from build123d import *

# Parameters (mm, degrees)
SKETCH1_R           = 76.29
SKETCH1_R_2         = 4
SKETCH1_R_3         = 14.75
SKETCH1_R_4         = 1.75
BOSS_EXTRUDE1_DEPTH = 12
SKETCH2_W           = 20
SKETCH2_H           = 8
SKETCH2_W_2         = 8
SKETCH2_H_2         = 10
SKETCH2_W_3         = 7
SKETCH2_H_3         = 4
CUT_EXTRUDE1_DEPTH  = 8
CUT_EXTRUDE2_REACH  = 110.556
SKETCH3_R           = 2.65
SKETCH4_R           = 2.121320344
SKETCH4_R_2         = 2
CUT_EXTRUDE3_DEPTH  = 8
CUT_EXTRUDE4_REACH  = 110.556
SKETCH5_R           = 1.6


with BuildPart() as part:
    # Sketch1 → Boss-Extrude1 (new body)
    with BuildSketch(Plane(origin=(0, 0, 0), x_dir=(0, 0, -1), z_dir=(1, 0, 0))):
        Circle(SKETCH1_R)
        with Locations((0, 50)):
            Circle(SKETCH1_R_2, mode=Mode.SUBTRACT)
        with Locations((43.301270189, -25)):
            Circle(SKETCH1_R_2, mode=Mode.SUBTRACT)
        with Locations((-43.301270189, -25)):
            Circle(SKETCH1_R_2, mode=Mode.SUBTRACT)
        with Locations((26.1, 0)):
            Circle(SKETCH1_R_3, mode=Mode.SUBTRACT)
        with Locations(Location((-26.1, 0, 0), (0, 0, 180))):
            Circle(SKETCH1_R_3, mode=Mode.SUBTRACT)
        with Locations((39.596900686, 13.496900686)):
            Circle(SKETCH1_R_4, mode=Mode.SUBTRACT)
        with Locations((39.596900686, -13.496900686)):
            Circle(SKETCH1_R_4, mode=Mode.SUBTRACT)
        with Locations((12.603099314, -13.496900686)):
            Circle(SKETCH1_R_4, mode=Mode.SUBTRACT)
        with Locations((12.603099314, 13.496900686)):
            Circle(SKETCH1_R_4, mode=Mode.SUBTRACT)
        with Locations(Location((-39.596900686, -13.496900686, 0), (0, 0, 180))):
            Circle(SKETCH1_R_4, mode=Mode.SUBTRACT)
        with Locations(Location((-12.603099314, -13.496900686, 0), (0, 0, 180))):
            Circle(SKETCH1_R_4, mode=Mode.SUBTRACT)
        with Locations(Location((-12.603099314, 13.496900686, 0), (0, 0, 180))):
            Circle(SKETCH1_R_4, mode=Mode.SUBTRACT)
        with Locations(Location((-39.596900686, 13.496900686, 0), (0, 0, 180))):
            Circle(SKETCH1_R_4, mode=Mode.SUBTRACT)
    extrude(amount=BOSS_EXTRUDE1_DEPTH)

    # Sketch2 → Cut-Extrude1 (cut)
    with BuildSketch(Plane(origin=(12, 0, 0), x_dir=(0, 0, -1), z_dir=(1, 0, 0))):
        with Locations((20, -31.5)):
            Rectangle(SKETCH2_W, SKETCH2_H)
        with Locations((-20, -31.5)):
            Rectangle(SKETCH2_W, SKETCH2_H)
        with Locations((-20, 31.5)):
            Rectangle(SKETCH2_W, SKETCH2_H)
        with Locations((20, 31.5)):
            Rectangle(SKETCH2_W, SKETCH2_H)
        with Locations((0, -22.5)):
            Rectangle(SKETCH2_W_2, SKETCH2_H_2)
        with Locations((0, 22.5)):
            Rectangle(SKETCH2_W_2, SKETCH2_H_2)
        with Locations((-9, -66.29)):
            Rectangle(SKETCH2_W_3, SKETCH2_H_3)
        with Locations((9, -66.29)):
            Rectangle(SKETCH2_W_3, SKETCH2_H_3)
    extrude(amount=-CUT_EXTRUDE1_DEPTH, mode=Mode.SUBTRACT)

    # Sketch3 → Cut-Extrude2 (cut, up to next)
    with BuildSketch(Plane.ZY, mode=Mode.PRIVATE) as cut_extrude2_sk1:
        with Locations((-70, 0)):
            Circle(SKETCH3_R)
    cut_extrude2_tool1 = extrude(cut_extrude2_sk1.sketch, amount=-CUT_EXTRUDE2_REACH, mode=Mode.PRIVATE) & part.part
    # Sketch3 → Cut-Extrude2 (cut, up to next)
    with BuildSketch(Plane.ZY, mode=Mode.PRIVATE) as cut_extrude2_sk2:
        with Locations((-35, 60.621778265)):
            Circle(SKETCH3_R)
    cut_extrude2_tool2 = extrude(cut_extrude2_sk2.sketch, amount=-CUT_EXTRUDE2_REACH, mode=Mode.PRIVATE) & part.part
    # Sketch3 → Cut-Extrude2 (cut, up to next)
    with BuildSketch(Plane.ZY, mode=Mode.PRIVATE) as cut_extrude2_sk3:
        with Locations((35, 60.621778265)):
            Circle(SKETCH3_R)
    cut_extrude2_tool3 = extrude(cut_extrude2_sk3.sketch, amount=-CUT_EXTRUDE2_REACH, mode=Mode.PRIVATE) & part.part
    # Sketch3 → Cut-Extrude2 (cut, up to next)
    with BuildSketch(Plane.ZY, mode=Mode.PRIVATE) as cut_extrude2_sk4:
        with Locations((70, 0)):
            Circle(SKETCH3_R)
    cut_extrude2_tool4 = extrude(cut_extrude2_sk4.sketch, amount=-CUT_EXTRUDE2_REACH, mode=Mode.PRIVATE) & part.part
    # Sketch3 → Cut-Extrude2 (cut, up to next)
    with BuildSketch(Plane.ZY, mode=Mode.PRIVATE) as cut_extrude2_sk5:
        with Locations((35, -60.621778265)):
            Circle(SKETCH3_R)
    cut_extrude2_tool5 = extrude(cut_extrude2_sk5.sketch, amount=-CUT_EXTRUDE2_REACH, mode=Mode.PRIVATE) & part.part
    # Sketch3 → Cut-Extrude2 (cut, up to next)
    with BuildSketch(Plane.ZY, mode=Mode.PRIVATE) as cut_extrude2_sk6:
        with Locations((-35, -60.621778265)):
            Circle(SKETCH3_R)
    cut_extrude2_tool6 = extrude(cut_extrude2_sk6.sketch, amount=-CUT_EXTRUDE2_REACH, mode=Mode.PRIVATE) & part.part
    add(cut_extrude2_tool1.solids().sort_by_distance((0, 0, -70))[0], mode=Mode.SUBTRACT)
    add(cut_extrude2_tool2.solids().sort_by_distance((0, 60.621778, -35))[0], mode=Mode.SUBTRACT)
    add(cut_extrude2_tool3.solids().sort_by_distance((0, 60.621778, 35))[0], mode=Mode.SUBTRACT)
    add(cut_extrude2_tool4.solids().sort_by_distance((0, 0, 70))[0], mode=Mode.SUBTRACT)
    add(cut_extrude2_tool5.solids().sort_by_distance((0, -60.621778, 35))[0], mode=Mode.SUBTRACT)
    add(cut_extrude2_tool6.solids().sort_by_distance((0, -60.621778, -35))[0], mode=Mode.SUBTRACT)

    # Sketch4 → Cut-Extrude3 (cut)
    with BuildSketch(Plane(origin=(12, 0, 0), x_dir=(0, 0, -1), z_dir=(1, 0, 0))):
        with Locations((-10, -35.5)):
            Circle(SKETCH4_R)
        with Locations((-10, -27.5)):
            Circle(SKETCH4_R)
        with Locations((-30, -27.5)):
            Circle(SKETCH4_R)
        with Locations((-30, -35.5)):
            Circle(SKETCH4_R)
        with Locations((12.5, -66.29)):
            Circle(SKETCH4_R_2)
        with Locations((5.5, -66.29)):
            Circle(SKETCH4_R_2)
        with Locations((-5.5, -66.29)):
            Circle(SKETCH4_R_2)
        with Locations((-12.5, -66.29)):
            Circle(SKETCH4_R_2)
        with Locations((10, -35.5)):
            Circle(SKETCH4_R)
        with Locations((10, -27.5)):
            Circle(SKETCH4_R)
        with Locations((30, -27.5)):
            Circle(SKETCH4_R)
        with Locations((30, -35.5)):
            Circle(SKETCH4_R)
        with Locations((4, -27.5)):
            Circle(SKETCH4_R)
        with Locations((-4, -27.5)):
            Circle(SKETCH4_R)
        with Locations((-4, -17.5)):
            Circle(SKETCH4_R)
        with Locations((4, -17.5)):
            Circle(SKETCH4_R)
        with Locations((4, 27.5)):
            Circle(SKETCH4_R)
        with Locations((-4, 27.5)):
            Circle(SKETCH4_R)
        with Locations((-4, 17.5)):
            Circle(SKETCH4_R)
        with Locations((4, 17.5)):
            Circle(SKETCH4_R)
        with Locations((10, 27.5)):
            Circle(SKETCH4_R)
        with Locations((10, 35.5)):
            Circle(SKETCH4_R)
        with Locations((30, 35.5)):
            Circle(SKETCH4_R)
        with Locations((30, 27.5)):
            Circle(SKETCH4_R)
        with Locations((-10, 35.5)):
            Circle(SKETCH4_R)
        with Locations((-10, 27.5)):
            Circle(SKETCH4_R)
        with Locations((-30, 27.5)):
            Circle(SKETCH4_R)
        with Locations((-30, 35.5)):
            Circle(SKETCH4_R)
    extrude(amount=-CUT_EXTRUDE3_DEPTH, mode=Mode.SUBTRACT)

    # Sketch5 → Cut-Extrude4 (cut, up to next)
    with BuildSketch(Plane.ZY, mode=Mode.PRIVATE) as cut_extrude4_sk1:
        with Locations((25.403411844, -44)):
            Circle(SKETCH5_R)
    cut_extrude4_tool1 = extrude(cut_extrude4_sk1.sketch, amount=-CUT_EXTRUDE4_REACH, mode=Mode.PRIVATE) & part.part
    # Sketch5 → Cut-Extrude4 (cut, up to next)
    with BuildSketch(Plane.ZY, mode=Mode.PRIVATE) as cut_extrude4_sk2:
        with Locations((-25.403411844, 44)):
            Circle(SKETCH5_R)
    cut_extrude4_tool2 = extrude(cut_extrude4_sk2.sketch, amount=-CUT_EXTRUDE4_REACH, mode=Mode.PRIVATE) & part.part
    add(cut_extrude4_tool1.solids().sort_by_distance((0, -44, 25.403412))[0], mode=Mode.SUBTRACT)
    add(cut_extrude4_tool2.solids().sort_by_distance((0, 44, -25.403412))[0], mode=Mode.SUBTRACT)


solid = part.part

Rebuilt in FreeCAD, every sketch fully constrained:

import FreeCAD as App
import Part
import Sketcher

V = App.Vector

doc = App.newDocument("Part")
body = doc.addObject("PartDesign::Body", "Body")

sketch1 = body.newObject("Sketcher::SketchObject", "Sketch")
sketch1.AttachmentSupport = (doc.getObject("YZ_Plane"), [""])
sketch1.MapMode = "FlatFace"
sketch1.addGeometry([
    Part.Circle(V(0, 0, 0), V(0, 0, 1), 76.3),
    Part.Circle(V(-25, 43.3, 0), V(0, 0, 1), 4),
    Part.Circle(V(-13.5, 39.6, 0), V(0, 0, 1), 1.8),
    Part.Circle(V(-13.5, 12.6, 0), V(0, 0, 1), 1.8),
    Part.Circle(V(0, 26.1, 0), V(0, 0, 1), 14.8),
    Part.Circle(V(-13.5, -12.6, 0), V(0, 0, 1), 1.8),
    Part.Circle(V(-25, -43.3, 0), V(0, 0, 1), 4),
    Part.Circle(V(-13.5, -39.6, 0), V(0, 0, 1), 1.8),
    Part.Circle(V(0, -26.1, 0), V(0, 0, 1), 14.8),
    Part.Circle(V(13.5, 39.6, 0), V(0, 0, 1), 1.8),
    Part.Circle(V(13.5, 12.6, 0), V(0, 0, 1), 1.8),
    Part.Circle(V(13.5, -12.6, 0), V(0, 0, 1), 1.8),
    Part.Circle(V(13.5, -39.6, 0), V(0, 0, 1), 1.8),
    Part.Circle(V(50, 0, 0), V(0, 0, 1), 4),
], False)
sketch1.addConstraint([
    Sketcher.Constraint("Coincident", 0, 3, -1, 1),
    Sketcher.Constraint("Equal", 2, 3),
    Sketcher.Constraint("Equal", 3, 5),
    Sketcher.Constraint("Equal", 1, 6),
    Sketcher.Constraint("Equal", 5, 7),
    Sketcher.Constraint("Equal", 4, 8),
    Sketcher.Constraint("Equal", 7, 9),
    Sketcher.Constraint("Equal", 9, 10),
    Sketcher.Constraint("Equal", 10, 11),
    Sketcher.Constraint("Equal", 11, 12),
    Sketcher.Constraint("Equal", 6, 13),
    Sketcher.Constraint("Symmetric", 4, 3, 8, 3, -1, 1),
    Sketcher.Constraint("Symmetric", 7, 3, 9, 3, -1, 1),
    Sketcher.Constraint("Symmetric", 5, 3, 10, 3, -1, 1),
    Sketcher.Constraint("Symmetric", 3, 3, 11, 3, -1, 1),
    Sketcher.Constraint("Symmetric", 2, 3, 12, 3, -1, 1),
    Sketcher.Constraint("Symmetric", 2, 3, 9, 3, -2),
    Sketcher.Constraint("Symmetric", 3, 3, 10, 3, -2),
    Sketcher.Constraint("Symmetric", 1, 3, 6, 3, -1),
    Sketcher.Constraint("PointOnObject", 4, 3, -2),
    Sketcher.Constraint("PointOnObject", 13, 3, -1),
    Sketcher.Constraint("Vertical", 2, 3, 3, 3),
    Sketcher.Constraint("Diameter", 1, 8.0),
    Sketcher.Constraint("Diameter", 2, 3.5),
    Sketcher.Constraint("Diameter", 4, 29.5),
    Sketcher.Constraint("Diameter", 0, 152.58),
    Sketcher.Constraint("DistanceX", 1, 3, -1, 1, 25.0),
    Sketcher.Constraint("DistanceX", -1, 1, 13, 3, 50.0),
    Sketcher.Constraint("DistanceY", -1, 1, 4, 3, 26.1),
    Sketcher.Constraint("DistanceY", 5, 3, 2, 3, 52.2),
    Sketcher.Constraint("DistanceX", 2, 3, -1, 1, 13.496901),
    Sketcher.Constraint("DistanceY", -1, 1, 2, 3, 39.596901),
    Sketcher.Constraint("DistanceY", -1, 1, 1, 3, 43.30127),
])
pad1 = body.newObject("PartDesign::Pad", "Pad")
pad1.Profile = sketch1
pad1.Length = 12

sketch2 = body.newObject("Sketcher::SketchObject", "Sketch001")
sketch2.AttachmentSupport = (doc.getObject("YZ_Plane"), [""])
sketch2.MapMode = "FlatFace"
sketch2.AttachmentOffset = App.Placement(V(0, 0, 12), App.Rotation())
sketch2.addGeometry([
    Part.LineSegment(V(-27.5, -10, 0), V(-35.5, -10, 0)),
    Part.LineSegment(V(-35.5, -10, 0), V(-35.5, -30, 0)),
    Part.LineSegment(V(-35.5, -30, 0), V(-27.5, -30, 0)),
    Part.LineSegment(V(-27.5, -30, 0), V(-27.5, -10, 0)),
    Part.LineSegment(V(-27.5, 30, 0), V(-35.5, 30, 0)),
    Part.LineSegment(V(-35.5, 30, 0), V(-35.5, 10, 0)),
    Part.LineSegment(V(-35.5, 10, 0), V(-27.5, 10, 0)),
    Part.LineSegment(V(-27.5, 10, 0), V(-27.5, 30, 0)),
    Part.LineSegment(V(35.5, 30, 0), V(27.5, 30, 0)),
    Part.LineSegment(V(27.5, 30, 0), V(27.5, 10, 0)),
    Part.LineSegment(V(27.5, 10, 0), V(35.5, 10, 0)),
    Part.LineSegment(V(35.5, 10, 0), V(35.5, 30, 0)),
    Part.LineSegment(V(35.5, -10, 0), V(27.5, -10, 0)),
    Part.LineSegment(V(27.5, -10, 0), V(27.5, -30, 0)),
    Part.LineSegment(V(27.5, -30, 0), V(35.5, -30, 0)),
    Part.LineSegment(V(35.5, -30, 0), V(35.5, -10, 0)),
    Part.LineSegment(V(-17.5, 4, 0), V(-27.5, 4, 0)),
    Part.LineSegment(V(-27.5, 4, 0), V(-27.5, -4, 0)),
    Part.LineSegment(V(-27.5, -4, 0), V(-17.5, -4, 0)),
    Part.LineSegment(V(-17.5, -4, 0), V(-17.5, 4, 0)),
    Part.LineSegment(V(27.5, 4, 0), V(17.5, 4, 0)),
    Part.LineSegment(V(17.5, 4, 0), V(17.5, -4, 0)),
    Part.LineSegment(V(17.5, -4, 0), V(27.5, -4, 0)),
    Part.LineSegment(V(27.5, -4, 0), V(27.5, 4, 0)),
    Part.LineSegment(V(-64.3, 12.5, 0), V(-68.3, 12.5, 0)),
    Part.LineSegment(V(-68.3, 12.5, 0), V(-68.3, 5.5, 0)),
    Part.LineSegment(V(-68.3, 5.5, 0), V(-64.3, 5.5, 0)),
    Part.LineSegment(V(-64.3, 5.5, 0), V(-64.3, 12.5, 0)),
    Part.LineSegment(V(-64.3, -5.5, 0), V(-68.3, -5.5, 0)),
    Part.LineSegment(V(-68.3, -5.5, 0), V(-68.3, -12.5, 0)),
    Part.LineSegment(V(-68.3, -12.5, 0), V(-64.3, -12.5, 0)),
    Part.LineSegment(V(-64.3, -12.5, 0), V(-64.3, -5.5, 0)),
], False)
sketch2.addConstraint([
    Sketcher.Constraint("Coincident", 0, 2, 1, 1),
    Sketcher.Constraint("Coincident", 1, 2, 2, 1),
    Sketcher.Constraint("Coincident", 2, 2, 3, 1),
    Sketcher.Constraint("Coincident", 3, 2, 0, 1),
    Sketcher.Constraint("Coincident", 4, 2, 5, 1),
    Sketcher.Constraint("Coincident", 5, 2, 6, 1),
    Sketcher.Constraint("Coincident", 6, 2, 7, 1),
    Sketcher.Constraint("Coincident", 7, 2, 4, 1),
    Sketcher.Constraint("Coincident", 8, 2, 9, 1),
    Sketcher.Constraint("Coincident", 9, 2, 10, 1),
    Sketcher.Constraint("Coincident", 10, 2, 11, 1),
    Sketcher.Constraint("Coincident", 11, 2, 8, 1),
    Sketcher.Constraint("Coincident", 12, 2, 13, 1),
    Sketcher.Constraint("Coincident", 13, 2, 14, 1),
    Sketcher.Constraint("Coincident", 14, 2, 15, 1),
    Sketcher.Constraint("Coincident", 15, 2, 12, 1),
    Sketcher.Constraint("Coincident", 16, 2, 17, 1),
    Sketcher.Constraint("Coincident", 17, 2, 18, 1),
    Sketcher.Constraint("Coincident", 18, 2, 19, 1),
    Sketcher.Constraint("Coincident", 19, 2, 16, 1),
    Sketcher.Constraint("Coincident", 20, 2, 21, 1),
    Sketcher.Constraint("Coincident", 21, 2, 22, 1),
    Sketcher.Constraint("Coincident", 22, 2, 23, 1),
    Sketcher.Constraint("Coincident", 23, 2, 20, 1),
    Sketcher.Constraint("Coincident", 24, 2, 25, 1),
    Sketcher.Constraint("Coincident", 25, 2, 26, 1),
    Sketcher.Constraint("Coincident", 26, 2, 27, 1),
    Sketcher.Constraint("Coincident", 27, 2, 24, 1),
    Sketcher.Constraint("Coincident", 28, 2, 29, 1),
    Sketcher.Constraint("Coincident", 29, 2, 30, 1),
    Sketcher.Constraint("Coincident", 30, 2, 31, 1),
    Sketcher.Constraint("Coincident", 31, 2, 28, 1),
    Sketcher.Constraint("Horizontal", 0),
    Sketcher.Constraint("Vertical", 1),
    Sketcher.Constraint("Horizontal", 2),
    Sketcher.Constraint("Vertical", 3),
    Sketcher.Constraint("Horizontal", 4),
    Sketcher.Constraint("Vertical", 5),
    Sketcher.Constraint("Horizontal", 6),
    Sketcher.Constraint("Vertical", 7),
    Sketcher.Constraint("Horizontal", 8),
    Sketcher.Constraint("Vertical", 9),
    Sketcher.Constraint("Horizontal", 10),
    Sketcher.Constraint("Vertical", 11),
    Sketcher.Constraint("Horizontal", 12),
    Sketcher.Constraint("Vertical", 13),
    Sketcher.Constraint("Horizontal", 14),
    Sketcher.Constraint("Vertical", 15),
    Sketcher.Constraint("Horizontal", 16),
    Sketcher.Constraint("Vertical", 17),
    Sketcher.Constraint("Horizontal", 18),
    Sketcher.Constraint("Vertical", 19),
    Sketcher.Constraint("Horizontal", 20),
    Sketcher.Constraint("Vertical", 21),
    Sketcher.Constraint("Horizontal", 22),
    Sketcher.Constraint("Vertical", 23),
    Sketcher.Constraint("Horizontal", 24),
    Sketcher.Constraint("Vertical", 25),
    Sketcher.Constraint("Horizontal", 26),
    Sketcher.Constraint("Vertical", 27),
    Sketcher.Constraint("Horizontal", 28),
    Sketcher.Constraint("Vertical", 29),
    Sketcher.Constraint("Horizontal", 30),
    Sketcher.Constraint("Vertical", 31),
    Sketcher.Constraint("Symmetric", 2, 2, 8, 2, -1, 1),
    Sketcher.Constraint("Symmetric", 0, 2, 10, 2, -1, 1),
    Sketcher.Constraint("Symmetric", 6, 2, 12, 2, -1, 1),
    Sketcher.Constraint("Symmetric", 4, 2, 14, 2, -1, 1),
    Sketcher.Constraint("Symmetric", 18, 2, 20, 2, -1, 1),
    Sketcher.Constraint("Symmetric", 16, 2, 22, 2, -1, 1),
    Sketcher.Constraint("Symmetric", 7, 2, 8, 2, -2),
    Sketcher.Constraint("Symmetric", 5, 2, 10, 2, -2),
    Sketcher.Constraint("Symmetric", 25, 2, 28, 2, -1),
    Sketcher.Constraint("Symmetric", 27, 2, 30, 2, -1),
    Sketcher.Constraint("Horizontal", 19, 2, 20, 2),
    Sketcher.Constraint("Vertical", 7, 2, 16, 2),
    Sketcher.Constraint("Equal", 14, 17),
    Sketcher.Constraint("DistanceX", 0, 2, 0, 1, 8.0),
    Sketcher.Constraint("DistanceX", 16, 2, 16, 1, 10.0),
    Sketcher.Constraint("DistanceX", 24, 2, 24, 1, 4.0),
    Sketcher.Constraint("DistanceY", 1, 2, 1, 1, 20.0),
    Sketcher.Constraint("DistanceY", 25, 2, 25, 1, 7.0),
    Sketcher.Constraint("DistanceY", 0, 2, -1, 1, 10.0),
    Sketcher.Constraint("DistanceX", 7, 2, 8, 2, 55.0),
    Sketcher.Constraint("DistanceY", 28, 2, 25, 2, 11.0),
    Sketcher.Constraint("DistanceX", 24, 2, -1, 1, 68.29),
])
pocket1 = body.newObject("PartDesign::Pocket", "Pocket")
pocket1.Profile = sketch2
pocket1.Length = 8

sketch3 = body.newObject("Sketcher::SketchObject", "Sketch002")
sketch3.AttachmentSupport = (doc.getObject("YZ_Plane"), [""])
sketch3.MapMode = "FlatFace"
sketch3.addGeometry(Part.Circle(V(0, -70, 0), V(0, 0, 1), 2.6), False)
sketch3.addConstraint([
    Sketcher.Constraint("PointOnObject", 0, 3, -2),
    Sketcher.Constraint("Diameter", 0, 5.3),
    Sketcher.Constraint("DistanceY", 0, 3, -1, 1, 70.0),
])
pocket2 = body.newObject("PartDesign::Pocket", "Pocket001")
pocket2.Profile = sketch3
pocket2.Type = "UpToFirst"
pocket2.Reversed = True

sketch4 = body.newObject("Sketcher::SketchObject", "Sketch003")
sketch4.AttachmentSupport = (doc.getObject("YZ_Plane"), [""])
sketch4.MapMode = "FlatFace"
sketch4.addGeometry(Part.Circle(V(60.6, -35, 0), V(0, 0, 1), 2.6), False)
sketch4.addConstraint([
    Sketcher.Constraint("Diameter", 0, 5.3),
    Sketcher.Constraint("DistanceY", 0, 3, -1, 1, 35.0),
    Sketcher.Constraint("DistanceX", -1, 1, 0, 3, 60.621778),
])
pocket3 = body.newObject("PartDesign::Pocket", "Pocket002")
pocket3.Profile = sketch4
pocket3.Type = "UpToFirst"
pocket3.Reversed = True

sketch5 = body.newObject("Sketcher::SketchObject", "Sketch004")
sketch5.AttachmentSupport = (doc.getObject("YZ_Plane"), [""])
sketch5.MapMode = "FlatFace"
sketch5.addGeometry(Part.Circle(V(60.6, 35, 0), V(0, 0, 1), 2.6), False)
sketch5.addConstraint([
    Sketcher.Constraint("Diameter", 0, 5.3),
    Sketcher.Constraint("DistanceY", -1, 1, 0, 3, 35.0),
    Sketcher.Constraint("DistanceX", -1, 1, 0, 3, 60.621778),
])
pocket4 = body.newObject("PartDesign::Pocket", "Pocket003")
pocket4.Profile = sketch5
pocket4.Type = "UpToFirst"
pocket4.Reversed = True

sketch6 = body.newObject("Sketcher::SketchObject", "Sketch005")
sketch6.AttachmentSupport = (doc.getObject("YZ_Plane"), [""])
sketch6.MapMode = "FlatFace"
sketch6.addGeometry(Part.Circle(V(0, 70, 0), V(0, 0, 1), 2.6), False)
sketch6.addConstraint([
    Sketcher.Constraint("PointOnObject", 0, 3, -2),
    Sketcher.Constraint("Diameter", 0, 5.3),
    Sketcher.Constraint("DistanceY", -1, 1, 0, 3, 70.0),
])
pocket5 = body.newObject("PartDesign::Pocket", "Pocket004")
pocket5.Profile = sketch6
pocket5.Type = "UpToFirst"
pocket5.Reversed = True

sketch7 = body.newObject("Sketcher::SketchObject", "Sketch006")
sketch7.AttachmentSupport = (doc.getObject("YZ_Plane"), [""])
sketch7.MapMode = "FlatFace"
sketch7.addGeometry(Part.Circle(V(-60.6, 35, 0), V(0, 0, 1), 2.6), False)
sketch7.addConstraint([
    Sketcher.Constraint("Diameter", 0, 5.3),
    Sketcher.Constraint("DistanceY", -1, 1, 0, 3, 35.0),
    Sketcher.Constraint("DistanceX", 0, 3, -1, 1, 60.621778),
])
pocket6 = body.newObject("PartDesign::Pocket", "Pocket005")
pocket6.Profile = sketch7
pocket6.Type = "UpToFirst"
pocket6.Reversed = True

sketch8 = body.newObject("Sketcher::SketchObject", "Sketch007")
sketch8.AttachmentSupport = (doc.getObject("YZ_Plane"), [""])
sketch8.MapMode = "FlatFace"
sketch8.addGeometry(Part.Circle(V(-60.6, -35, 0), V(0, 0, 1), 2.6), False)
sketch8.addConstraint([
    Sketcher.Constraint("Diameter", 0, 5.3),
    Sketcher.Constraint("DistanceY", 0, 3, -1, 1, 35.0),
    Sketcher.Constraint("DistanceX", 0, 3, -1, 1, 60.621778),
])
pocket7 = body.newObject("PartDesign::Pocket", "Pocket006")
pocket7.Profile = sketch8
pocket7.Type = "UpToFirst"
pocket7.Reversed = True

sketch9 = body.newObject("Sketcher::SketchObject", "Sketch008")
sketch9.AttachmentSupport = (doc.getObject("YZ_Plane"), [""])
sketch9.MapMode = "FlatFace"
sketch9.AttachmentOffset = App.Placement(V(0, 0, 12), App.Rotation())
sketch9.addGeometry([
    Part.Circle(V(-35.5, 10, 0), V(0, 0, 1), 2.1),
    Part.Circle(V(-27.5, 10, 0), V(0, 0, 1), 2.1),
    Part.Circle(V(-27.5, 30, 0), V(0, 0, 1), 2.1),
    Part.Circle(V(-35.5, 30, 0), V(0, 0, 1), 2.1),
    Part.Circle(V(-66.3, -12.5, 0), V(0, 0, 1), 2),
    Part.Circle(V(-66.3, -5.5, 0), V(0, 0, 1), 2),
    Part.Circle(V(-66.3, 5.5, 0), V(0, 0, 1), 2),
    Part.Circle(V(-66.3, 12.5, 0), V(0, 0, 1), 2),
    Part.Circle(V(-35.5, -10, 0), V(0, 0, 1), 2.1),
    Part.Circle(V(-27.5, -10, 0), V(0, 0, 1), 2.1),
    Part.Circle(V(-27.5, -30, 0), V(0, 0, 1), 2.1),
    Part.Circle(V(-35.5, -30, 0), V(0, 0, 1), 2.1),
    Part.Circle(V(-27.5, -4, 0), V(0, 0, 1), 2.1),
    Part.Circle(V(-27.5, 4, 0), V(0, 0, 1), 2.1),
    Part.Circle(V(-17.5, 4, 0), V(0, 0, 1), 2.1),
    Part.Circle(V(-17.5, -4, 0), V(0, 0, 1), 2.1),
    Part.Circle(V(27.5, -4, 0), V(0, 0, 1), 2.1),
    Part.Circle(V(27.5, 4, 0), V(0, 0, 1), 2.1),
    Part.Circle(V(17.5, 4, 0), V(0, 0, 1), 2.1),
    Part.Circle(V(17.5, -4, 0), V(0, 0, 1), 2.1),
    Part.Circle(V(27.5, -10, 0), V(0, 0, 1), 2.1),
    Part.Circle(V(35.5, -10, 0), V(0, 0, 1), 2.1),
    Part.Circle(V(35.5, -30, 0), V(0, 0, 1), 2.1),
    Part.Circle(V(27.5, -30, 0), V(0, 0, 1), 2.1),
    Part.Circle(V(35.5, 10, 0), V(0, 0, 1), 2.1),
    Part.Circle(V(27.5, 10, 0), V(0, 0, 1), 2.1),
    Part.Circle(V(27.5, 30, 0), V(0, 0, 1), 2.1),
    Part.Circle(V(35.5, 30, 0), V(0, 0, 1), 2.1),
], False)
sketch9.addConstraint([
    Sketcher.Constraint("Equal", 0, 1),
    Sketcher.Constraint("Equal", 1, 2),
    Sketcher.Constraint("Equal", 2, 3),
    Sketcher.Constraint("Equal", 4, 5),
    Sketcher.Constraint("Equal", 5, 6),
    Sketcher.Constraint("Equal", 6, 7),
    Sketcher.Constraint("Equal", 3, 8),
    Sketcher.Constraint("Equal", 8, 9),
    Sketcher.Constraint("Equal", 9, 10),
    Sketcher.Constraint("Equal", 10, 11),
    Sketcher.Constraint("Equal", 11, 12),
    Sketcher.Constraint("Equal", 12, 13),
    Sketcher.Constraint("Equal", 13, 14),
    Sketcher.Constraint("Equal", 14, 15),
    Sketcher.Constraint("Equal", 15, 16),
    Sketcher.Constraint("Equal", 16, 17),
    Sketcher.Constraint("Equal", 17, 18),
    Sketcher.Constraint("Equal", 18, 19),
    Sketcher.Constraint("Equal", 19, 20),
    Sketcher.Constraint("Equal", 20, 21),
    Sketcher.Constraint("Equal", 21, 22),
    Sketcher.Constraint("Equal", 22, 23),
    Sketcher.Constraint("Equal", 23, 24),
    Sketcher.Constraint("Equal", 24, 25),
    Sketcher.Constraint("Equal", 25, 26),
    Sketcher.Constraint("Equal", 26, 27),
    Sketcher.Constraint("Symmetric", 13, 3, 16, 3, -1, 1),
    Sketcher.Constraint("Symmetric", 12, 3, 17, 3, -1, 1),
    Sketcher.Constraint("Symmetric", 15, 3, 18, 3, -1, 1),
    Sketcher.Constraint("Symmetric", 14, 3, 19, 3, -1, 1),
    Sketcher.Constraint("Symmetric", 1, 3, 20, 3, -1, 1),
    Sketcher.Constraint("Symmetric", 0, 3, 21, 3, -1, 1),
    Sketcher.Constraint("Symmetric", 3, 3, 22, 3, -1, 1),
    Sketcher.Constraint("Symmetric", 2, 3, 23, 3, -1, 1),
    Sketcher.Constraint("Symmetric", 8, 3, 24, 3, -1, 1),
    Sketcher.Constraint("Symmetric", 9, 3, 25, 3, -1, 1),
    Sketcher.Constraint("Symmetric", 10, 3, 26, 3, -1, 1),
    Sketcher.Constraint("Symmetric", 11, 3, 27, 3, -1, 1),
    Sketcher.Constraint("Symmetric", 12, 3, 16, 3, -2),
    Sketcher.Constraint("Symmetric", 14, 3, 18, 3, -2),
    Sketcher.Constraint("Symmetric", 9, 3, 20, 3, -2),
    Sketcher.Constraint("Symmetric", 8, 3, 21, 3, -2),
    Sketcher.Constraint("Symmetric", 11, 3, 22, 3, -2),
    Sketcher.Constraint("Symmetric", 10, 3, 23, 3, -2),
    Sketcher.Constraint("Symmetric", 5, 3, 6, 3, -1),
    Sketcher.Constraint("Symmetric", 4, 3, 7, 3, -1),
    Sketcher.Constraint("Horizontal", 0, 3, 1, 3),
    Sketcher.Constraint("Horizontal", 2, 3, 3, 3),
    Sketcher.Constraint("Horizontal", 13, 3, 14, 3),
    Sketcher.Constraint("Vertical", 1, 3, 2, 3),
    Sketcher.Constraint("Vertical", 0, 3, 3, 3),
    Sketcher.Constraint("Vertical", 4, 3, 5, 3),
    Sketcher.Constraint("Vertical", 10, 3, 12, 3),
    Sketcher.Constraint("Diameter", 4, 4.0),
    Sketcher.Constraint("DistanceY", -1, 1, 0, 3, 10.0),
    Sketcher.Constraint("DistanceY", -1, 1, 2, 3, 30.0),
    Sketcher.Constraint("DistanceY", 12, 3, -1, 1, 4.0),
    Sketcher.Constraint("DistanceX", 0, 3, 1, 3, 8.0),
    Sketcher.Constraint("DistanceY", 4, 3, 5, 3, 7.0),
    Sketcher.Constraint("DistanceY", 5, 3, 6, 3, 11.0),
    Sketcher.Constraint("DistanceX", 13, 3, 14, 3, 10.0),
    Sketcher.Constraint("DistanceX", 15, 3, 16, 3, 45.0),
    Sketcher.Constraint("Diameter", 0, 4.242641),
    Sketcher.Constraint("DistanceX", 4, 3, -1, 1, 66.29),
])
pocket8 = body.newObject("PartDesign::Pocket", "Pocket007")
pocket8.Profile = sketch9
pocket8.Length = 8

sketch10 = body.newObject("Sketcher::SketchObject", "Sketch009")
sketch10.AttachmentSupport = (doc.getObject("YZ_Plane"), [""])
sketch10.MapMode = "FlatFace"
sketch10.addGeometry(Part.Circle(V(-44, 25.4, 0), V(0, 0, 1), 1.6), False)
sketch10.addConstraint([
    Sketcher.Constraint("Diameter", 0, 3.2),
    Sketcher.Constraint("DistanceX", 0, 3, -1, 1, 44.0),
    Sketcher.Constraint("DistanceY", -1, 1, 0, 3, 25.403412),
])
pocket9 = body.newObject("PartDesign::Pocket", "Pocket008")
pocket9.Profile = sketch10
pocket9.Type = "UpToFirst"
pocket9.Reversed = True

sketch11 = body.newObject("Sketcher::SketchObject", "Sketch010")
sketch11.AttachmentSupport = (doc.getObject("YZ_Plane"), [""])
sketch11.MapMode = "FlatFace"
sketch11.addGeometry(Part.Circle(V(44, -25.4, 0), V(0, 0, 1), 1.6), False)
sketch11.addConstraint([
    Sketcher.Constraint("Diameter", 0, 3.2),
    Sketcher.Constraint("DistanceX", -1, 1, 0, 3, 44.0),
    Sketcher.Constraint("DistanceY", 0, 3, -1, 1, 25.403412),
])
pocket10 = body.newObject("PartDesign::Pocket", "Pocket009")
pocket10.Profile = sketch11
pocket10.Type = "UpToFirst"
pocket10.Reversed = True

doc.recompute()
